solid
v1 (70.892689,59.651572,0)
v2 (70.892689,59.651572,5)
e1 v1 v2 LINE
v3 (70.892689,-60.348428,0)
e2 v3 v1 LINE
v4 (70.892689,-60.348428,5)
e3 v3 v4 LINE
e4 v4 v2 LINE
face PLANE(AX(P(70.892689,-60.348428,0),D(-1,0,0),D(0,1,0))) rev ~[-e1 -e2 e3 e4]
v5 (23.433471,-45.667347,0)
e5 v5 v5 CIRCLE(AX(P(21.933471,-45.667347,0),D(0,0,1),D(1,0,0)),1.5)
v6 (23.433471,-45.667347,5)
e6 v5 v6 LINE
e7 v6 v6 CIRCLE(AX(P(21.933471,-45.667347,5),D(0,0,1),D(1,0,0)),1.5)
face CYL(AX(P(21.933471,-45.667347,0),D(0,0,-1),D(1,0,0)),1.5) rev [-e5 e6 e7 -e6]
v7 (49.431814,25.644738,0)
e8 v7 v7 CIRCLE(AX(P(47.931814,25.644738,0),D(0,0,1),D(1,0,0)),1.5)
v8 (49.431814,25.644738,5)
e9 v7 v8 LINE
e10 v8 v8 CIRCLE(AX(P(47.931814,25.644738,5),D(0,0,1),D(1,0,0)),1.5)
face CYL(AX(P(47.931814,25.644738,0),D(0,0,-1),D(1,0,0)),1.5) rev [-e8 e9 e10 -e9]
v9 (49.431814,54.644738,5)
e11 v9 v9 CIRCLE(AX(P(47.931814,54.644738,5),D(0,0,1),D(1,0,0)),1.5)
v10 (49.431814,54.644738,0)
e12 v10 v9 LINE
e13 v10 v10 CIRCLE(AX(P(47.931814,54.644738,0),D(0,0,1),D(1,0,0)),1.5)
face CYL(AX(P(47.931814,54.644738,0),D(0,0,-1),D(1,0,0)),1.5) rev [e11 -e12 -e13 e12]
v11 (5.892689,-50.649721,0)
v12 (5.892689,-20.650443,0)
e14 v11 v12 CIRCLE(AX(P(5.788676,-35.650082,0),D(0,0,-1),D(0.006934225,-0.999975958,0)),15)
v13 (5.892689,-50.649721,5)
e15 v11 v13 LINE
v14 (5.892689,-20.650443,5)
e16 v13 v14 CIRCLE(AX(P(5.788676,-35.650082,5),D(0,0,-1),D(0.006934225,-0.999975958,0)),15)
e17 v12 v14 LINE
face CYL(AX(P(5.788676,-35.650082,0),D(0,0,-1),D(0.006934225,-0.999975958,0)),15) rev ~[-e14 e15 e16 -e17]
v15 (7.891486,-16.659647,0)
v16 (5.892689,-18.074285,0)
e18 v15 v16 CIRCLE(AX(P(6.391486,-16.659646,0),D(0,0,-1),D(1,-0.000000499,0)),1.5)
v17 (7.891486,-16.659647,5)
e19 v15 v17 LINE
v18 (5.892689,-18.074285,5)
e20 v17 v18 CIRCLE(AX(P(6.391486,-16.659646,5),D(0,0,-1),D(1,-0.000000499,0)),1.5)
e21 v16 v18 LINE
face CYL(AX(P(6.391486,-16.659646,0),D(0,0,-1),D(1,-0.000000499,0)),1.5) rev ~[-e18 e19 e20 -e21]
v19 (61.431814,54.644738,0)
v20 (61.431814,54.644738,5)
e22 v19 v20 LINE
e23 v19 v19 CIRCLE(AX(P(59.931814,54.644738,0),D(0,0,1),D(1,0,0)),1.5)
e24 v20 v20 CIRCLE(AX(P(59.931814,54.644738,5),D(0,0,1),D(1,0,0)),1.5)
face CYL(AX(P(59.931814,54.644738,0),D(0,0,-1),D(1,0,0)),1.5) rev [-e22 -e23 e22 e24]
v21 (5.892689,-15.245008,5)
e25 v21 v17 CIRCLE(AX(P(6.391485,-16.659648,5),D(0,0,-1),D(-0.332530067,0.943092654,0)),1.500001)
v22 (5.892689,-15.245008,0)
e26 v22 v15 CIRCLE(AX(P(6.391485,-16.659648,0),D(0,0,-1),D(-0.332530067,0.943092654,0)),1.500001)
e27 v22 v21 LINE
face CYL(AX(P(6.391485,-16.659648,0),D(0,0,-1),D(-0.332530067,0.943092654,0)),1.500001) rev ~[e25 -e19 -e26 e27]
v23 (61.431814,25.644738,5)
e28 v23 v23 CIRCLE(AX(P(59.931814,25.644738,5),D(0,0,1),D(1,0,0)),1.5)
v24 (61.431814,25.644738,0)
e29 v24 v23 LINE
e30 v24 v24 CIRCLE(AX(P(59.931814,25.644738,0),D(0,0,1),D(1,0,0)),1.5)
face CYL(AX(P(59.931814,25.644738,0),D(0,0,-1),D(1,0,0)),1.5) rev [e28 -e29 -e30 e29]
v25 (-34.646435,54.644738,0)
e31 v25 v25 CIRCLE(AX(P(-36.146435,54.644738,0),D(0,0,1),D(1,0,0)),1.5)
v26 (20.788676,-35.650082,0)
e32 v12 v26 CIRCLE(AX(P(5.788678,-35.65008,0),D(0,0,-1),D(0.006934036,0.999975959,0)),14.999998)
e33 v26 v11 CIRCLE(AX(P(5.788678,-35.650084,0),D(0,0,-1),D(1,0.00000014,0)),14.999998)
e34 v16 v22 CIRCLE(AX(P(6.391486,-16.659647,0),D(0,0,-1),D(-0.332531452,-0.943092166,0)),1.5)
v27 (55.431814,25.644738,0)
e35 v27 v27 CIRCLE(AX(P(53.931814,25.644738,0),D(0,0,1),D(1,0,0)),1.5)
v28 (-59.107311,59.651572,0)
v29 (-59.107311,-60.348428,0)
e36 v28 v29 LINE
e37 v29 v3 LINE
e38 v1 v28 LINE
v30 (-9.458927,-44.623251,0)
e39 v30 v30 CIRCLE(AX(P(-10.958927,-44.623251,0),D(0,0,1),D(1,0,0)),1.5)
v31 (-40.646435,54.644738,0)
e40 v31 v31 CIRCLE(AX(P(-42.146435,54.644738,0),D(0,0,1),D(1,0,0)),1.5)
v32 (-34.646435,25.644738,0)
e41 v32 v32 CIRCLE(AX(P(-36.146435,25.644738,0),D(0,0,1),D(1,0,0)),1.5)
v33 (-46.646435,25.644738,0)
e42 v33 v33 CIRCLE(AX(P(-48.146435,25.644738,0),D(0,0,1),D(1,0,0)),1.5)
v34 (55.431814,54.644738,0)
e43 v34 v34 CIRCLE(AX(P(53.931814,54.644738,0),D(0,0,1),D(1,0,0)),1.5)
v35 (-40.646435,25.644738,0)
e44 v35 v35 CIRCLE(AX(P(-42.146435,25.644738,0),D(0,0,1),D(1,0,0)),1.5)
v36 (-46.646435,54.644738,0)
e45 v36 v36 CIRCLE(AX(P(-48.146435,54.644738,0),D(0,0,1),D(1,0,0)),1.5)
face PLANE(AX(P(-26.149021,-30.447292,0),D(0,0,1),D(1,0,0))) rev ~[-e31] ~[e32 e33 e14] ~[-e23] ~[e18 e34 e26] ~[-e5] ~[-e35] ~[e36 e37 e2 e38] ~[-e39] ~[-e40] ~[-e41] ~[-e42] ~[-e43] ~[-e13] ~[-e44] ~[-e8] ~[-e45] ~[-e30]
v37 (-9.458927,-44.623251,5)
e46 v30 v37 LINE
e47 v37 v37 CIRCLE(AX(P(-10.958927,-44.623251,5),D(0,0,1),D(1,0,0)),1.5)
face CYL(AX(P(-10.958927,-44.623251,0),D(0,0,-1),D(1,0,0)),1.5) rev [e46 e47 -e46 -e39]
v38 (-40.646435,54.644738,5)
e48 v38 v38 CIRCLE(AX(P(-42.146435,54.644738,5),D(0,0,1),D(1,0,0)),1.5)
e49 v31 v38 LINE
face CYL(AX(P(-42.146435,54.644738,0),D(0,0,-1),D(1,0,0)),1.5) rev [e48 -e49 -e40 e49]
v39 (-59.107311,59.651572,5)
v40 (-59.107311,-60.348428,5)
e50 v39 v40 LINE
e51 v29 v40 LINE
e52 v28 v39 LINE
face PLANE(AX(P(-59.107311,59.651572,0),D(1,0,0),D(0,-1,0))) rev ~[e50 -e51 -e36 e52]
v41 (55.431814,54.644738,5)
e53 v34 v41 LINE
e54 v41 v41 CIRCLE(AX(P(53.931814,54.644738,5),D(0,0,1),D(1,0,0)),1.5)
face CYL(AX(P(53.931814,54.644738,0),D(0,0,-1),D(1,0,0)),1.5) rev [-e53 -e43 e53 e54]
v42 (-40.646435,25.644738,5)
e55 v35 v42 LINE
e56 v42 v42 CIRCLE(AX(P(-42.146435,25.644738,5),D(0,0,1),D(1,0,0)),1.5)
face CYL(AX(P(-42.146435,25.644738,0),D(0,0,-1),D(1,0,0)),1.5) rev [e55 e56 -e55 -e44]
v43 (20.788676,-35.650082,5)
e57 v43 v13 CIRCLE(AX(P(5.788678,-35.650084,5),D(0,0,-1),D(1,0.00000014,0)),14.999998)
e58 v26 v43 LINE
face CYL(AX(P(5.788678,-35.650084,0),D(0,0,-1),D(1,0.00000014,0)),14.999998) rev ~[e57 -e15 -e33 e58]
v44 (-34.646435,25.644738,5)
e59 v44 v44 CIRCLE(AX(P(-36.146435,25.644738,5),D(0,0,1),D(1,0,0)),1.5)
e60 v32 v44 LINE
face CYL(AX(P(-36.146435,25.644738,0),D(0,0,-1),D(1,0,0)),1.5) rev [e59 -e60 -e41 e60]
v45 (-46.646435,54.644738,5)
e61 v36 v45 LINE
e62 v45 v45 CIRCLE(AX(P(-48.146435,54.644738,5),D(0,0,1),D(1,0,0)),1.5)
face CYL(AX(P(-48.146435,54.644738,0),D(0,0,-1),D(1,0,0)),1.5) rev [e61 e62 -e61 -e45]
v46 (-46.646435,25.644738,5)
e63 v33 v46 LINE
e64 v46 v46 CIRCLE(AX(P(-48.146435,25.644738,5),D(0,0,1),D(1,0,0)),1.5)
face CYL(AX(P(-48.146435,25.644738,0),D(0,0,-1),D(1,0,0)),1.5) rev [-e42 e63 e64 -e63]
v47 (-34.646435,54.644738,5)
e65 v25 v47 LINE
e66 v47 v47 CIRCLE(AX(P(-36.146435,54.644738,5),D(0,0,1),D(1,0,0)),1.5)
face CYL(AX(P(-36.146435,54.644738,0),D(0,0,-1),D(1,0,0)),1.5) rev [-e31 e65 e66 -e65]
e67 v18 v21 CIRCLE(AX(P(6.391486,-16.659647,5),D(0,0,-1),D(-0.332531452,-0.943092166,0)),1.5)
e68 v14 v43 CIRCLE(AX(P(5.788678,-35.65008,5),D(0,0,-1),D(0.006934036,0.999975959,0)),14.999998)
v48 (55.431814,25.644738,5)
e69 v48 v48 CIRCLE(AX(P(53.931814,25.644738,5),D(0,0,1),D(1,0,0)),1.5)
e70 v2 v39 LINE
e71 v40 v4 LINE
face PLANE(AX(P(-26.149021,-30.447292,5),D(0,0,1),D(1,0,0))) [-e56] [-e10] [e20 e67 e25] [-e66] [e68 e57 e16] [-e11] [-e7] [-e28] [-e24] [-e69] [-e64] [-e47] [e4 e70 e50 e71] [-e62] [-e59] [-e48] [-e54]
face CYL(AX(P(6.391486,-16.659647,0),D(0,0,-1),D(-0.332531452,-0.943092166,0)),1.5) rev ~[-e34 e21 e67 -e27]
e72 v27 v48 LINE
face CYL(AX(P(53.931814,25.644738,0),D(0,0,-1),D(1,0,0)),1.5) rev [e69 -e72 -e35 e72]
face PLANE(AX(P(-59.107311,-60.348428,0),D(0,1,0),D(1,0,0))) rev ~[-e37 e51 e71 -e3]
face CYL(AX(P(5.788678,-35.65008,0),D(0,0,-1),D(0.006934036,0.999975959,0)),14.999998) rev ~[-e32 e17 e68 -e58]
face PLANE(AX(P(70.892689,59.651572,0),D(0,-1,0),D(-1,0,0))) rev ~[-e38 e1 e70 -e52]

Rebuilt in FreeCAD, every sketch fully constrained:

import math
import FreeCAD as App
import Part
import Sketcher
from FreeCAD import Vector

doc = App.newDocument("Part")
body = doc.addObject("PartDesign::Body", "Body")

# Sketch on XY plane
sketch1 = body.newObject("Sketcher::SketchObject", "Sketch")
sketch1.AttachmentSupport = (doc.getObject("XY_Plane"), [""])
sketch1.MapMode = "FlatFace"
sketch1.addGeometry([
    Part.LineSegment(Vector(70.9, 59.7, 0), Vector(-59.1, 59.7, 0)),  # 0
    Part.LineSegment(Vector(-59.1, 59.7, 0), Vector(-59.1, -60.3, 0)),  # 1
    Part.LineSegment(Vector(-59.1, -60.3, 0), Vector(70.9, -60.3, 0)),  # 2
    Part.LineSegment(Vector(70.9, -60.3, 0), Vector(70.9, 59.7, 0)),  # 3
    Part.Circle(Vector(-11, -44.6, 0), Vector(0, 0, 1), 1.5),  # 4
    Part.ArcOfCircle(Part.Circle(Vector(5.8, -35.7, 0), Vector(0, 0, 1), 15), math.radians(90), math.radians(270)),  # 5
    Part.ArcOfCircle(Part.Circle(Vector(5.8, -35.7, 0), Vector(0, 0, 1), 15), math.radians(0), math.radians(90)),  # 6
    Part.ArcOfCircle(Part.Circle(Vector(5.8, -35.7, 0), Vector(0, 0, 1), 15), math.radians(-90), math.radians(0)),  # 7
    Part.Circle(Vector(21.9, -45.7, 0), Vector(0, 0, 1), 1.5),  # 8
    Part.ArcOfCircle(Part.Circle(Vector(6.4, -16.7, 0), Vector(0, 0, 1), 1.5), math.radians(109), math.radians(251)),  # 9
    Part.ArcOfCircle(Part.Circle(Vector(6.4, -16.7, 0), Vector(0, 0, 1), 1.5), math.radians(0), math.radians(109)),  # 10
    Part.ArcOfCircle(Part.Circle(Vector(6.4, -16.7, 0), Vector(0, 0, 1), 1.5), math.radians(-109), math.radians(0)),  # 11
    Part.Circle(Vector(-48.1, 25.6, 0), Vector(0, 0, 1), 1.5),  # 12
    Part.Circle(Vector(-42.1, 25.6, 0), Vector(0, 0, 1), 1.5),  # 13
    Part.Circle(Vector(-36.1, 25.6, 0), Vector(0, 0, 1), 1.5),  # 14
    Part.Circle(Vector(-48.1, 54.6, 0), Vector(0, 0, 1), 1.5),  # 15
    Part.Circle(Vector(-42.1, 54.6, 0), Vector(0, 0, 1), 1.5),  # 16
    Part.Circle(Vector(-36.1, 54.6, 0), Vector(0, 0, 1), 1.5),  # 17
    Part.Circle(Vector(47.9, 25.6, 0), Vector(0, 0, 1), 1.5),  # 18
    Part.Circle(Vector(53.9, 25.6, 0), Vector(0, 0, 1), 1.5),  # 19
    Part.Circle(Vector(59.9, 25.6, 0), Vector(0, 0, 1), 1.5),  # 20
    Part.Circle(Vector(47.9, 54.6, 0), Vector(0, 0, 1), 1.5),  # 21
    Part.Circle(Vector(53.9, 54.6, 0), Vector(0, 0, 1), 1.5),  # 22
    Part.Circle(Vector(59.9, 54.6, 0), Vector(0, 0, 1), 1.5),  # 23
], False)
sketch1.addConstraint([
    Sketcher.Constraint("Coincident", 0, 2, 1, 1),
    Sketcher.Constraint("Coincident", 1, 2, 2, 1),
    Sketcher.Constraint("Coincident", 2, 2, 3, 1),
    Sketcher.Constraint("Coincident", 3, 2, 0, 1),
    Sketcher.Constraint("Tangent", 5, 1, 6, 2),
    Sketcher.Constraint("Tangent", 6, 1, 7, 2),
    Sketcher.Constraint("Tangent", 7, 1, 5, 2),
    Sketcher.Constraint("Tangent", 9, 1, 10, 2),
    Sketcher.Constraint("Tangent", 10, 1, 11, 2),
    Sketcher.Constraint("Tangent", 11, 1, 9, 2),
    Sketcher.Constraint("Horizontal", 0),
    Sketcher.Constraint("Vertical", 1),
    Sketcher.Constraint("Horizontal", 2),
    Sketcher.Constraint("Vertical", 3),
    Sketcher.Constraint("Equal", 4, 8),
    Sketcher.Constraint("Equal", 8, 9),
    Sketcher.Constraint("Equal", 11, 12),
    Sketcher.Constraint("Equal", 12, 13),
    Sketcher.Constraint("Equal", 13, 14),
    Sketcher.Constraint("Equal", 14, 15),
    Sketcher.Constraint("Equal", 15, 16),
    Sketcher.Constraint("Equal", 16, 17),
    Sketcher.Constraint("Equal", 17, 18),
    Sketcher.Constraint("Equal", 18, 19),
    Sketcher.Constraint("Equal", 19, 20),
    Sketcher.Constraint("Equal", 20, 21),
    Sketcher.Constraint("Equal", 21, 22),
    Sketcher.Constraint("Equal", 22, 23),
    Sketcher.Constraint("Horizontal", 12, 3, 13, 3),
    Sketcher.Constraint("Horizontal", 13, 3, 14, 3),
    Sketcher.Constraint("Horizontal", 15, 3, 16, 3),
    Sketcher.Constraint("Horizontal", 16, 3, 17, 3),
    Sketcher.Constraint("Horizontal", 14, 3, 18, 3),
    Sketcher.Constraint("Horizontal", 18, 3, 19, 3),
    Sketcher.Constraint("Horizontal", 19, 3, 20, 3),
    Sketcher.Constraint("Horizontal", 17, 3, 21, 3),
    Sketcher.Constraint("Horizontal", 21, 3, 22, 3),
    Sketcher.Constraint("Horizontal", 22, 3, 23, 3),
    Sketcher.Constraint("Horizontal", 5, 3, 6, 1),
    Sketcher.Constraint("Horizontal", 11, 3, 10, 1),
    Sketcher.Constraint("Vertical", 12, 3, 15, 3),
    Sketcher.Constraint("Vertical", 13, 3, 16, 3),
    Sketcher.Constraint("Vertical", 14, 3, 17, 3),
    Sketcher.Constraint("Vertical", 18, 3, 21, 3),
    Sketcher.Constraint("Vertical", 19, 3, 22, 3),
    Sketcher.Constraint("Vertical", 20, 3, 23, 3),
    Sketcher.Constraint("Vertical", 5, 1, 7, 1),
    Sketcher.Constraint("Vertical", 7, 1, 9, 1),
    Sketcher.Constraint("Vertical", 9, 1, 11, 1),
    Sketcher.Constraint("Diameter", 4, 3.0),
    Sketcher.Constraint("Radius", 5, 15.0),
    Sketcher.Constraint("DistanceX", 0, 2, 0, 1, 130.0),
    Sketcher.Constraint("DistanceY", 1, 2, 1, 1, 120.0),
    Sketcher.Constraint("DistanceX", 12, 3, 13, 3, 6.0),
    Sketcher.Constraint("DistanceX", 13, 3, 14, 3, 6.0),
    Sketcher.Constraint("DistanceY", 12, 3, 15, 3, 29.0),
    Sketcher.Constraint("DistanceX", 18, 3, 19, 3, 6.0),
    Sketcher.Constraint("DistanceX", 19, 3, 20, 3, 6.0),
    Sketcher.Constraint("DistanceY", 8, 3, 9, 3, 29.0077),
    Sketcher.Constraint("DistanceY", 4, 3, -1, 1, 44.623251),
    Sketcher.Constraint("DistanceY", 5, 3, -1, 1, 35.650082),
    Sketcher.Constraint("DistanceX", -1, 1, 6, 3, 5.788678),
    Sketcher.Constraint("DistanceX", -1, 1, 8, 3, 21.933471),
    Sketcher.Constraint("DistanceY", 10, 3, -1, 1, 16.659648),
    Sketcher.Constraint("DistanceY", -1, 1, 12, 3, 25.644738),
    Sketcher.Constraint("DistanceX", 0, 2, -1, 1, 59.107311),
    Sketcher.Constraint("DistanceX", -1, 1, 5, 1, 5.892689),
    Sketcher.Constraint("DistanceY", 9, 1, -1, 1, 15.245008),
    Sketcher.Constraint("DistanceX", 4, 3, 10, 3, 17.350412),
    Sketcher.Constraint("DistanceX", 12, 3, 11, 3, 54.537921),
    Sketcher.Constraint("DistanceX", 11, 3, 18, 3, 41.540328),
    Sketcher.Constraint("DistanceY", 1, 2, 6, 3, 24.698348),
])
pad1 = body.newObject("PartDesign::Pad", "Pad")
pad1.Profile = sketch1
pad1.Length = 5

doc.recompute()
